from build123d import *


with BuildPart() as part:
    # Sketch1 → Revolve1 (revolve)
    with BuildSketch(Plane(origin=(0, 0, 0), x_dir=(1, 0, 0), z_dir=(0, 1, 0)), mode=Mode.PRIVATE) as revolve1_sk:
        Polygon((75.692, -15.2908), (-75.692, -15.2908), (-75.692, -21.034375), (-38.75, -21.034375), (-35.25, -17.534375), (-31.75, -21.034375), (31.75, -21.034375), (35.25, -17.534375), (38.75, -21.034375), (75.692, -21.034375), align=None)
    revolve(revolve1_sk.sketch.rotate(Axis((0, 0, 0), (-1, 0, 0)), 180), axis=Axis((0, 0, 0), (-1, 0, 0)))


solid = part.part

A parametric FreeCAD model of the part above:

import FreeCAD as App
import Part
import Sketcher

V = App.Vector
Q = App.Units.Quantity


def add_polygon(sketch, points):
    """Adds a closed chain of lines whose ends are joined by coincident constraints."""
    first, n = sketch.GeometryCount, len(points)
    for a, b in zip(points, points[1:] + points[:1]):
        sketch.addGeometry(Part.LineSegment(App.Vector(*a, 0), App.Vector(*b, 0)), False)
    for i in range(n):
        sketch.addConstraint(Sketcher.Constraint("Coincident", first + i, 2, first + (i + 1) % n, 1))

doc = App.newDocument("Part")
body = doc.addObject("PartDesign::Body", "Body")

# Sketch on XZ plane
sketch1 = body.newObject("Sketcher::SketchObject", "Sketch")
sketch1.AttachmentSupport = (doc.getObject("XZ_Plane"), [""])
sketch1.MapMode = "FlatFace"
add_polygon(sketch1, [(75.7, 15.3), (-75.7, 15.3), (-75.7, 21), (-38.8, 21), (-35.2, 17.5), (-31.8, 21), (31.8, 21), (35.2, 17.5), (38.8, 21), (75.7, 21)])  # lines 0-9
sketch1.addConstraint([
    Sketcher.Constraint("Horizontal", 0),
    Sketcher.Constraint("Vertical", 1),
    Sketcher.Constraint("Horizontal", 2),
    Sketcher.Constraint("Horizontal", 5),
    Sketcher.Constraint("Horizontal", 8),
    Sketcher.Constraint("Vertical", 9),
    Sketcher.Constraint("Symmetric", 3, 2, 6, 2, -2),
    Sketcher.Constraint("Symmetric", 2, 2, 7, 2, -2),
    Sketcher.Constraint("Perpendicular", 3, 4),
    Sketcher.Constraint("Perpendicular", 4, 6),
    Sketcher.Constraint("Perpendicular", 6, 7),
    Sketcher.Constraint("Horizontal", 2, 2, 4, 2),
    Sketcher.Constraint("Equal", 2, 8),
    Sketcher.Constraint("DistanceX", 5, 1, 5, 2, Q("2.5 in")),
    Sketcher.Constraint("DistanceX", 0, 2, 0, 1, Q("5.96 in")),
    Sketcher.Constraint("DistanceY", -1, 1, 0, 2, Q("0.602 in")),
    Sketcher.Constraint("DistanceY", -1, 1, 1, 2, Q("0.828125 in")),
    Sketcher.Constraint("DistanceX", 2, 1, 2, 2, Q("36.942 mm")),
])
revolution = body.newObject("PartDesign::Revolution", "Revolution")
revolution.Profile = sketch1
revolution.ReferenceAxis = (sketch1, ["H_Axis"])
revolution.Angle = 360

doc.recompute()
